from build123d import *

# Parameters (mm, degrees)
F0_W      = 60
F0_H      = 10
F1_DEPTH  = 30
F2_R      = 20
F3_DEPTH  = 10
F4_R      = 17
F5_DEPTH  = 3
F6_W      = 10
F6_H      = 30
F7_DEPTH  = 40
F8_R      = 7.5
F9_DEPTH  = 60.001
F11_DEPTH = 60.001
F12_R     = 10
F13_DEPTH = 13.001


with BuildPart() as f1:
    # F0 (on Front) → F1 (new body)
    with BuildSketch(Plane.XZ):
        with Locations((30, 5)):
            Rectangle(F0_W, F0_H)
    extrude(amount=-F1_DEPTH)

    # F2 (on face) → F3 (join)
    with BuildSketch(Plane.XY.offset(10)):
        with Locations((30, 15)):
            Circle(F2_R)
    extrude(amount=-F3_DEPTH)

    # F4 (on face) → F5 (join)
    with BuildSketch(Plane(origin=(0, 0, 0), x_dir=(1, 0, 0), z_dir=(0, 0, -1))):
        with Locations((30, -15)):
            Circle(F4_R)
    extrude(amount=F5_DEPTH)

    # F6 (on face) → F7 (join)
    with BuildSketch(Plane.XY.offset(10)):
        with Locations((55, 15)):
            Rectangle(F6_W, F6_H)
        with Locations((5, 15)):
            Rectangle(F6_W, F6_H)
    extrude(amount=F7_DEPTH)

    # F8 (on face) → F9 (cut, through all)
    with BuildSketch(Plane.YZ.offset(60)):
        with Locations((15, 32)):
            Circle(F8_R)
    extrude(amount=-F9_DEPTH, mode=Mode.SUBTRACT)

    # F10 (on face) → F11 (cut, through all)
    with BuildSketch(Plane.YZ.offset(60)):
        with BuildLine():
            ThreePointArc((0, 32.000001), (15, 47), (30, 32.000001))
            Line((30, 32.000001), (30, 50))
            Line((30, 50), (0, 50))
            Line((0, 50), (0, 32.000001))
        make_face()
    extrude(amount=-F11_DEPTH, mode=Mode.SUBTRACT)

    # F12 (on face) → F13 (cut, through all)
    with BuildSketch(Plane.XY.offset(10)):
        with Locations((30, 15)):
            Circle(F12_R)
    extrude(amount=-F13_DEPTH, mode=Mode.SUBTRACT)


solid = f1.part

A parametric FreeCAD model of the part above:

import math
import FreeCAD as App
import Part
import Sketcher

V = App.Vector
Q = App.Units.Quantity


def add_polygon(sketch, points):
    """Adds a closed chain of lines whose ends are joined by coincident constraints."""
    first, n = sketch.GeometryCount, len(points)
    for a, b in zip(points, points[1:] + points[:1]):
        sketch.addGeometry(Part.LineSegment(App.Vector(*a, 0), App.Vector(*b, 0)), False)
    for i in range(n):
        sketch.addConstraint(Sketcher.Constraint("Coincident", first + i, 2, first + (i + 1) % n, 1))

doc = App.newDocument("Part")
body = doc.addObject("PartDesign::Body", "Body")

# Sketch on XZ plane
sketch1 = body.newObject("Sketcher::SketchObject", "Sketch")
sketch1.AttachmentSupport = (doc.getObject("XZ_Plane"), [""])
sketch1.MapMode = "FlatFace"
add_polygon(sketch1, [(0, 10), (0, 0), (60, 0), (60, 10)])  # lines 0-3
sketch1.addConstraint([
    Sketcher.Constraint("Vertical", 0),
    Sketcher.Constraint("Horizontal", 1),
    Sketcher.Constraint("Vertical", 2),
    Sketcher.Constraint("Horizontal", 3),
    Sketcher.Constraint("Coincident", 0, 2, -1, 1),
    Sketcher.Constraint("DistanceX", 1, 1, 1, 2, Q("60 mm")),
    Sketcher.Constraint("DistanceY", 0, 2, 0, 1, Q("10 mm")),
])
pad1 = body.newObject("PartDesign::Pad", "Pad")
pad1.Profile = sketch1
pad1.Length = 30
pad1.Reversed = True

# Sketch on XY plane
sketch2 = body.newObject("Sketcher::SketchObject", "Sketch001")
sketch2.AttachmentSupport = (doc.getObject("XY_Plane"), [""])
sketch2.MapMode = "FlatFace"
sketch2.AttachmentOffset = App.Placement(V(0, 0, 10), App.Rotation())
sketch2.addGeometry(Part.Circle(V(30, 15, 0), V(0, 0, 1), 20), False)
sketch2.addConstraint([
    Sketcher.Constraint("Diameter", 0, Q("40 mm")),
    Sketcher.Constraint("DistanceX", -1, 1, 0, 3, Q("30 mm")),
    Sketcher.Constraint("DistanceY", -1, 1, 0, 3, Q("15 mm")),
])
pad2 = body.newObject("PartDesign::Pad", "Pad001")
pad2.Profile = sketch2
pad2.Length = 10
pad2.Reversed = True

# Sketch on XY plane
sketch3 = body.newObject("Sketcher::SketchObject", "Sketch002")
sketch3.AttachmentSupport = (doc.getObject("XY_Plane"), [""])
sketch3.MapMode = "FlatFace"
sketch3.addGeometry(Part.Circle(V(30, 15, 0), V(0, 0, 1), 17), False)
sketch3.addConstraint([
    Sketcher.Constraint("Diameter", 0, Q("34 mm")),
    Sketcher.Constraint("DistanceX", -1, 1, 0, 3, Q("30 mm")),
    Sketcher.Constraint("DistanceY", -1, 1, 0, 3, Q("15 mm")),
])
pad3 = body.newObject("PartDesign::Pad", "Pad002")
pad3.Profile = sketch3
pad3.Length = 3
pad3.Reversed = True

# Sketch on XY plane
sketch4 = body.newObject("Sketcher::SketchObject", "Sketch003")
sketch4.AttachmentSupport = (doc.getObject("XY_Plane"), [""])
sketch4.MapMode = "FlatFace"
sketch4.AttachmentOffset = App.Placement(V(0, 0, 10), App.Rotation())
add_polygon(sketch4, [(50, 30), (50, 0), (60, 0), (60, 30)])  # lines 0-3
add_polygon(sketch4, [(0, 30), (0, 0), (10, 0), (10, 30)])  # lines 4-7
sketch4.addConstraint([
    Sketcher.Constraint("Vertical", 0),
    Sketcher.Constraint("Horizontal", 1),
    Sketcher.Constraint("Vertical", 2),
    Sketcher.Constraint("Horizontal", 3),
    Sketcher.Constraint("Vertical", 4),
    Sketcher.Constraint("Horizontal", 5),
    Sketcher.Constraint("Vertical", 6),
    Sketcher.Constraint("Horizontal", 7),
    Sketcher.Constraint("Coincident", 4, 2, -1, 1),
    Sketcher.Constraint("PointOnObject", 0, 2, -1),
    Sketcher.Constraint("Horizontal", 3, 2, 6, 2),
    Sketcher.Constraint("Equal", 3, 5),
    Sketcher.Constraint("DistanceX", 1, 1, 1, 2, Q("10 mm")),
    Sketcher.Constraint("DistanceY", 0, 2, 0, 1, Q("30 mm")),
    Sketcher.Constraint("DistanceX", -1, 1, 0, 2, Q("50 mm")),
])
pad4 = body.newObject("PartDesign::Pad", "Pad003")
pad4.Profile = sketch4
pad4.Length = 40

# Sketch on YZ plane
sketch5 = body.newObject("Sketcher::SketchObject", "Sketch004")
sketch5.AttachmentSupport = (doc.getObject("YZ_Plane"), [""])
sketch5.MapMode = "FlatFace"
sketch5.AttachmentOffset = App.Placement(V(0, 0, 60), App.Rotation())
sketch5.addGeometry(Part.Circle(V(15, 32, 0), V(0, 0, 1), 7.5), False)
sketch5.addConstraint([
    Sketcher.Constraint("Diameter", 0, Q("15 mm")),
    Sketcher.Constraint("DistanceX", -1, 1, 0, 3, Q("15 mm")),
    Sketcher.Constraint("DistanceY", -1, 1, 0, 3, Q("32 mm")),
])
pocket1 = body.newObject("PartDesign::Pocket", "Pocket")
pocket1.Profile = sketch5
pocket1.Type = "ThroughAll"

# Sketch on YZ plane
sketch6 = body.newObject("Sketcher::SketchObject", "Sketch005")
sketch6.AttachmentSupport = (doc.getObject("YZ_Plane"), [""])
sketch6.MapMode = "FlatFace"
sketch6.AttachmentOffset = App.Placement(V(0, 0, 60), App.Rotation())
sketch6.addGeometry([
    Part.ArcOfCircle(Part.Circle(V(15, 32, 0), V(0, 0, 1), 15), math.radians(0.000004), math.radians(179.999996)),
    Part.LineSegment(V(30, 32.000001, 0), V(30, 50, 0)),
    Part.LineSegment(V(30, 50, 0), V(0, 50, 0)),
    Part.LineSegment(V(0, 50, 0), V(0, 32.000001, 0)),
], False)
sketch6.addConstraint([
    Sketcher.Constraint("Tangent", 0, 1, 1, 1),
    Sketcher.Constraint("Coincident", 1, 2, 2, 1),
    Sketcher.Constraint("Coincident", 2, 2, 3, 1),
    Sketcher.Constraint("Tangent", 3, 2, 0, 2),
    Sketcher.Constraint("Vertical", 1),
    Sketcher.Constraint("Horizontal", 2),
    Sketcher.Constraint("Vertical", 3),
    Sketcher.Constraint("PointOnObject", 2, 2, -2),
    Sketcher.Constraint("Radius", 0, Q("15 mm")),
    Sketcher.Constraint("DistanceY", 1, 1, 1, 2, Q("17.999999 mm")),
    Sketcher.Constraint("DistanceY", -1, 1, 0, 3, Q("32 mm")),
])
pocket2 = body.newObject("PartDesign::Pocket", "Pocket001")
pocket2.Profile = sketch6
pocket2.Type = "ThroughAll"

# Sketch on XY plane
sketch7 = body.newObject("Sketcher::SketchObject", "Sketch006")
sketch7.AttachmentSupport = (doc.getObject("XY_Plane"), [""])
sketch7.MapMode = "FlatFace"
sketch7.AttachmentOffset = App.Placement(V(0, 0, 10), App.Rotation())
sketch7.addGeometry(Part.Circle(V(30, 15, 0), V(0, 0, 1), 10), False)
sketch7.addConstraint([
    Sketcher.Constraint("Diameter", 0, Q("20 mm")),
    Sketcher.Constraint("DistanceX", -1, 1, 0, 3, Q("30 mm")),
    Sketcher.Constraint("DistanceY", -1, 1, 0, 3, Q("15 mm")),
])
pocket3 = body.newObject("PartDesign::Pocket", "Pocket002")
pocket3.Profile = sketch7
pocket3.Type = "ThroughAll"

doc.recompute()
